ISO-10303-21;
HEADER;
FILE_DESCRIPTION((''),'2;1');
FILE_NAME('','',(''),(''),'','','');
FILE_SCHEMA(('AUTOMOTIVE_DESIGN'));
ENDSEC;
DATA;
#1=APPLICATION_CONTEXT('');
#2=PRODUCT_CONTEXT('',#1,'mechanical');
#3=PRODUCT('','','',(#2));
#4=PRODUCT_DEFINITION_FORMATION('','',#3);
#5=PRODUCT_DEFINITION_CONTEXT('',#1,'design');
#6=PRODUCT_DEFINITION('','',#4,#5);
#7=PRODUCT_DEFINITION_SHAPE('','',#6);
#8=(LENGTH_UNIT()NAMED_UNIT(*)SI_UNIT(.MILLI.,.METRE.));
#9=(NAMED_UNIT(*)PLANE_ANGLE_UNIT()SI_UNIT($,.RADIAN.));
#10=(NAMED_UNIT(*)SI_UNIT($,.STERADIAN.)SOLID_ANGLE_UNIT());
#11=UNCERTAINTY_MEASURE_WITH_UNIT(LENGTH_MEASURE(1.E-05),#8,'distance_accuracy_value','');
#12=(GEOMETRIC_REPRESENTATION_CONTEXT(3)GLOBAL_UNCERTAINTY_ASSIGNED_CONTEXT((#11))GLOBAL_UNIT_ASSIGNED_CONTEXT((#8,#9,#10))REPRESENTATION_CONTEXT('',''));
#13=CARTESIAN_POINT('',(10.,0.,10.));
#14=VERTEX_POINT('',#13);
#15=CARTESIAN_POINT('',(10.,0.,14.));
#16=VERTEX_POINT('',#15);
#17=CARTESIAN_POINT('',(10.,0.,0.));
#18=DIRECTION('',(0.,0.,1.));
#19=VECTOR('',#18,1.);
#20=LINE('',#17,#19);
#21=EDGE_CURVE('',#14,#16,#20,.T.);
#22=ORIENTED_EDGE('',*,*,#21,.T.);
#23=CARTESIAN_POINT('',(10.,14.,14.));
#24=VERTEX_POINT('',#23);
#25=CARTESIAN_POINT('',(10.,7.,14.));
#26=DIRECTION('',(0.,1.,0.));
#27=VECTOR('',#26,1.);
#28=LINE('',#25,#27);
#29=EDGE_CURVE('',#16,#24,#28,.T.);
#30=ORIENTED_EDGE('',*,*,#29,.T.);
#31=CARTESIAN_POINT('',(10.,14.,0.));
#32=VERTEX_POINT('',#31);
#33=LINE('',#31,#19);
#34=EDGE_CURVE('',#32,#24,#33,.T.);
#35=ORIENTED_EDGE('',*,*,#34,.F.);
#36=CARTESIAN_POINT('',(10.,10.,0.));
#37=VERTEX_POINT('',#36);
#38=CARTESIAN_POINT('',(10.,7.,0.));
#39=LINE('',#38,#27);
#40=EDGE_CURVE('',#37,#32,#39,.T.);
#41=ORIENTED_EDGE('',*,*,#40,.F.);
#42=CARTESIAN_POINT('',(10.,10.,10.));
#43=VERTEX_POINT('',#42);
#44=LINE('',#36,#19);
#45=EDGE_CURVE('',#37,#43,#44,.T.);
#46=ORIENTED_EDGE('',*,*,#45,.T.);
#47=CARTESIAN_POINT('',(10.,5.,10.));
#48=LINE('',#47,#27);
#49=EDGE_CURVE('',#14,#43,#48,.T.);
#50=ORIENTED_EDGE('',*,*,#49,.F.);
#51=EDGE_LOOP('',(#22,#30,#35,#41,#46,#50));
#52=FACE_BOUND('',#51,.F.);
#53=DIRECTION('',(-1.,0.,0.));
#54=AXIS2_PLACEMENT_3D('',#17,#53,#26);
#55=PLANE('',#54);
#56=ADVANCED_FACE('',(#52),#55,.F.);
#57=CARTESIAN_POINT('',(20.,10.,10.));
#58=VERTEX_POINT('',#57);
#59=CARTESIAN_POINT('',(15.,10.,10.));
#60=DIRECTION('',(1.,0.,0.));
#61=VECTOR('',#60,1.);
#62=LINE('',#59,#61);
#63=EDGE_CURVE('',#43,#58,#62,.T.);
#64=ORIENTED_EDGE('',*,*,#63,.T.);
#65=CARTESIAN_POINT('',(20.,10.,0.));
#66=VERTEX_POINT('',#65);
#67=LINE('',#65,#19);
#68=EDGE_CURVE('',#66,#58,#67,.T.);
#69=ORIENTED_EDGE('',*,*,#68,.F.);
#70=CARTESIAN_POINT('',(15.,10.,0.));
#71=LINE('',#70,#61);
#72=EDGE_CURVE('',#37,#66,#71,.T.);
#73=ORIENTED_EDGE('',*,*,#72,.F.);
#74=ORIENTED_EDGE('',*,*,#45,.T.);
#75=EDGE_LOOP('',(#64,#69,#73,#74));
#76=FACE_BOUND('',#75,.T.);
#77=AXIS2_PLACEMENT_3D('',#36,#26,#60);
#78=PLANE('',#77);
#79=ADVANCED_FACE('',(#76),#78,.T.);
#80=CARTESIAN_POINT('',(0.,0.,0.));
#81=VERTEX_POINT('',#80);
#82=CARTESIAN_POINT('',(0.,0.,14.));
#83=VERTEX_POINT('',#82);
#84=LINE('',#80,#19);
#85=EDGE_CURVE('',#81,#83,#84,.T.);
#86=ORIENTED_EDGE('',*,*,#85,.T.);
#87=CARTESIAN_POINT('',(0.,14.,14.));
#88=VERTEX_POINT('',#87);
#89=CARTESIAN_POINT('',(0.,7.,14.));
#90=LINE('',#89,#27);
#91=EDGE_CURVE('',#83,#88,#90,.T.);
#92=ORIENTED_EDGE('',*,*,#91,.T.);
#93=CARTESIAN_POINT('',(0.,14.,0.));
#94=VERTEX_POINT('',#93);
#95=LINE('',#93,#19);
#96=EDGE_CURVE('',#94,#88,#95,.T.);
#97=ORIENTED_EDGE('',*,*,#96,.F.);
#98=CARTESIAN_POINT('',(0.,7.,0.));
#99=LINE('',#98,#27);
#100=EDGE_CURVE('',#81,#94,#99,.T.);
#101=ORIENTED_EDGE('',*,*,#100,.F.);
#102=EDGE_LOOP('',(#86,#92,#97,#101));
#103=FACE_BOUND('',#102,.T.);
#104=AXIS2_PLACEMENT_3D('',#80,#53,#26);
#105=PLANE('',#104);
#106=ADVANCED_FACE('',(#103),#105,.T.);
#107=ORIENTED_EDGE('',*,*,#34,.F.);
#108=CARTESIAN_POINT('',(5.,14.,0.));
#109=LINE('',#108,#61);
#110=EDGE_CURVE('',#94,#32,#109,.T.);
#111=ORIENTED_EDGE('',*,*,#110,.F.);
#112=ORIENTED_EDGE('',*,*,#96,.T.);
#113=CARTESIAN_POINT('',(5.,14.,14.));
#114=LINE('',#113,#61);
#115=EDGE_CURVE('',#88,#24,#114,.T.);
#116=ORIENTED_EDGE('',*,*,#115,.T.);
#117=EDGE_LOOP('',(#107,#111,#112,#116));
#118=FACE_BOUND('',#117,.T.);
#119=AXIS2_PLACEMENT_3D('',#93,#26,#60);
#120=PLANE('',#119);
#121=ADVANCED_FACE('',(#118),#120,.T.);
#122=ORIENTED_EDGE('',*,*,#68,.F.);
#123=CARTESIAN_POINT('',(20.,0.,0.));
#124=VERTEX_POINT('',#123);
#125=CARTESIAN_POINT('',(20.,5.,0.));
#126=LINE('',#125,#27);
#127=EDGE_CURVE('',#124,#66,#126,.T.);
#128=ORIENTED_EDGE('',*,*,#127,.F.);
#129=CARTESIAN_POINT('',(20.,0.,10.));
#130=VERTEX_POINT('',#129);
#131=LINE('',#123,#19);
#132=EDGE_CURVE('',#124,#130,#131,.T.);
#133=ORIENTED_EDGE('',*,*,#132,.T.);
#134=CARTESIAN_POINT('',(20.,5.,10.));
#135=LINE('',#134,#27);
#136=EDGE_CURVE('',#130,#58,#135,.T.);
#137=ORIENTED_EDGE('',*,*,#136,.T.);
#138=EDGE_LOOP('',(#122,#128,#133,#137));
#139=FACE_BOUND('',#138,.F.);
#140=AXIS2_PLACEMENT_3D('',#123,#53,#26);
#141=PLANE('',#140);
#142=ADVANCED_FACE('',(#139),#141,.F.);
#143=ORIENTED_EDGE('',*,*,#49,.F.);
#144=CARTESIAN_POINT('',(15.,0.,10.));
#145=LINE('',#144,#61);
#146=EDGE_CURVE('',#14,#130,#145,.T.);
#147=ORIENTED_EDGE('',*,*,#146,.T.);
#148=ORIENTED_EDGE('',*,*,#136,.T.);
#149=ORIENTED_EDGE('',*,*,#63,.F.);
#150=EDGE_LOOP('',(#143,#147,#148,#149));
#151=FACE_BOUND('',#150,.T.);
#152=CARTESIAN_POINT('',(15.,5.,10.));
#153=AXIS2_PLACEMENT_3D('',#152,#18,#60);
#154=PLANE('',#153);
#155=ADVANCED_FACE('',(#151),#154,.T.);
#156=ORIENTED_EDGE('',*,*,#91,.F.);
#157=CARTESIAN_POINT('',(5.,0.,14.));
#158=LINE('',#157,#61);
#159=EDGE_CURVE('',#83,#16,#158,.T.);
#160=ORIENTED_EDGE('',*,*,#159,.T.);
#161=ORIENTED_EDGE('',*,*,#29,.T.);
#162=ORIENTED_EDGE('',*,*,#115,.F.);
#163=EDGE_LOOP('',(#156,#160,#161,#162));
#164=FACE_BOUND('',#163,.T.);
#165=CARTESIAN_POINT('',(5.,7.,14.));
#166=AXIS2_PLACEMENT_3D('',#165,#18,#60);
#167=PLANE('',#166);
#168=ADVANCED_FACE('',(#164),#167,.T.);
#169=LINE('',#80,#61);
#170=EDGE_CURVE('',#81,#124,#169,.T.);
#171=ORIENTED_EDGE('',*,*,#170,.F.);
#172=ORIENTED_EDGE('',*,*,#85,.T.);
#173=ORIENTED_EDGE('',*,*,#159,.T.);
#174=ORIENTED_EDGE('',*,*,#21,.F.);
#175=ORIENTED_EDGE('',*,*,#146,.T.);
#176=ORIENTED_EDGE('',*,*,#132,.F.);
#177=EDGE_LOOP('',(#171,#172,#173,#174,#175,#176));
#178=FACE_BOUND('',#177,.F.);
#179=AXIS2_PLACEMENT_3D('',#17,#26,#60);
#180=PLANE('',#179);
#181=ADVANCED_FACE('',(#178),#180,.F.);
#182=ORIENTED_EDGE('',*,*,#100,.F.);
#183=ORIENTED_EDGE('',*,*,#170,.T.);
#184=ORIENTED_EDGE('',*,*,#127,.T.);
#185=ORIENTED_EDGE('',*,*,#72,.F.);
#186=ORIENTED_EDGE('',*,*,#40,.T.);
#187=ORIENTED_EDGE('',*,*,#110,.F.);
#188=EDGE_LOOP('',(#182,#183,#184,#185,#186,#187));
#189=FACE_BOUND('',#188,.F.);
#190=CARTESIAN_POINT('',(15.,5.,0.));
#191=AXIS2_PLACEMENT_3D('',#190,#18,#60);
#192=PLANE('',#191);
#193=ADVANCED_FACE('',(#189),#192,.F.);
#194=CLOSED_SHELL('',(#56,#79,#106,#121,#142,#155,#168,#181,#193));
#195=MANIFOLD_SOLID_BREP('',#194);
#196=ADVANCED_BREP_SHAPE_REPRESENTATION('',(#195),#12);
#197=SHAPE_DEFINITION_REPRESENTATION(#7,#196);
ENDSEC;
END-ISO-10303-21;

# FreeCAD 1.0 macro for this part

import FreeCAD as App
import Part
import Sketcher
from FreeCAD import Vector
Q = App.Units.Quantity

doc = App.newDocument("Part")
body = doc.addObject("PartDesign::Body", "Body")

# Sketch on XY plane
sketch1 = body.newObject("Sketcher::SketchObject", "Sketch")
sketch1.AttachmentSupport = (doc.getObject("XY_Plane"), [""])
sketch1.MapMode = "FlatFace"
sketch1.addGeometry([
    Part.LineSegment(Vector(10, 10, 0), Vector(10, 0, 0)),
    Part.LineSegment(Vector(10, 0, 0), Vector(20, 0, 0)),
    Part.LineSegment(Vector(20, 0, 0), Vector(20, 10, 0)),
    Part.LineSegment(Vector(20, 10, 0), Vector(10, 10, 0)),
], False)
sketch1.addConstraint([
    Sketcher.Constraint("Coincident", 0, 2, 1, 1),
    Sketcher.Constraint("Coincident", 1, 2, 2, 1),
    Sketcher.Constraint("Coincident", 2, 2, 3, 1),
    Sketcher.Constraint("Coincident", 3, 2, 0, 1),
    Sketcher.Constraint("Vertical", 0),
    Sketcher.Constraint("Horizontal", 1),
    Sketcher.Constraint("Vertical", 2),
    Sketcher.Constraint("Horizontal", 3),
    Sketcher.Constraint("PointOnObject", 0, 2, -1),
    Sketcher.Constraint("Equal", 3, 0),
    Sketcher.Constraint("DistanceX", 1, 1, 1, 2, Q("10 mm")),
    Sketcher.Constraint("DistanceX", -1, 1, 0, 2, Q("10 mm")),
])
pad1 = body.newObject("PartDesign::Pad", "Pad")
pad1.Profile = sketch1
pad1.Length = 10
body2 = doc.addObject("PartDesign::Body", "Body001")

# Sketch on XY plane
sketch2 = body2.newObject("Sketcher::SketchObject", "Sketch001")
sketch2.AttachmentSupport = (doc.getObject("XY_Plane001"), [""])
sketch2.MapMode = "FlatFace"
sketch2.addGeometry([
    Part.LineSegment(Vector(0, 14, 0), Vector(0, 0, 0)),
    Part.LineSegment(Vector(0, 0, 0), Vector(10, 0, 0)),
    Part.LineSegment(Vector(10, 0, 0), Vector(10, 14, 0)),
    Part.LineSegment(Vector(10, 14, 0), Vector(0, 14, 0)),
], False)
sketch2.addConstraint([
    Sketcher.Constraint("Coincident", 0, 2, 1, 1),
    Sketcher.Constraint("Coincident", 1, 2, 2, 1),
    Sketcher.Constraint("Coincident", 2, 2, 3, 1),
    Sketcher.Constraint("Coincident", 3, 2, 0, 1),
    Sketcher.Constraint("Vertical", 0),
    Sketcher.Constraint("Horizontal", 1),
    Sketcher.Constraint("Vertical", 2),
    Sketcher.Constraint("Horizontal", 3),
    Sketcher.Constraint("Coincident", 0, 2, -1, 1),
    Sketcher.Constraint("DistanceX", 1, 1, 1, 2, Q("10 mm")),
    Sketcher.Constraint("DistanceY", 0, 2, 0, 1, Q("14 mm")),
])
pad2 = body2.newObject("PartDesign::Pad", "Pad001")
pad2.Profile = sketch2
pad2.Length = 14
doc.recompute()

boolean = body2.newObject("PartDesign::Boolean", "Boolean")
boolean.Type = "Fuse"
boolean.addObjects([body])

doc.recompute()
